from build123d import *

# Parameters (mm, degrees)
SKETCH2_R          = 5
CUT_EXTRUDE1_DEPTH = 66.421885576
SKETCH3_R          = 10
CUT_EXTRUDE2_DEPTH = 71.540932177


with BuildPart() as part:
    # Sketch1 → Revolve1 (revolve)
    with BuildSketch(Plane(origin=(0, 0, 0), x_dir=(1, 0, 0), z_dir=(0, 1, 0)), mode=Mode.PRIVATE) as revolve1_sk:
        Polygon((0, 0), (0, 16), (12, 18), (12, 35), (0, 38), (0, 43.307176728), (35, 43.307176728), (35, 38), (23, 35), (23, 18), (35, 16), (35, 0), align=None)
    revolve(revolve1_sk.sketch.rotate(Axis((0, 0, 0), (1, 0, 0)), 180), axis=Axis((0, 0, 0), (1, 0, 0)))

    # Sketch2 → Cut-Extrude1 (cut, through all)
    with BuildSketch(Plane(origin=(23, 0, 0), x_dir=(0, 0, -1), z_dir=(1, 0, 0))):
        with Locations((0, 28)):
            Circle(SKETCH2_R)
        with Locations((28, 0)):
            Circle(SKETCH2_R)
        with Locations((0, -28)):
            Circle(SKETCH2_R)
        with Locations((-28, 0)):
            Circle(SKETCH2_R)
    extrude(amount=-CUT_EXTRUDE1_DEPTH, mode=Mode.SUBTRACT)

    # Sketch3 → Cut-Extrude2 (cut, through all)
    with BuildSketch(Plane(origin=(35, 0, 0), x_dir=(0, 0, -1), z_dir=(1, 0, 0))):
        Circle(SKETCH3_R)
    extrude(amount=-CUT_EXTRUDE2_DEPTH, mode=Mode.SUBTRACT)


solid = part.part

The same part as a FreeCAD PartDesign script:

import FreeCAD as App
import Part
import Sketcher
from FreeCAD import Vector
Q = App.Units.Quantity

doc = App.newDocument("Part")
params = doc.addObject("Spreadsheet::Sheet", "Params")
for row, (alias, value) in enumerate([
    ("sketch1_width", "35 mm"),
    ("sketch1_height", "16 mm"),
    ("sketch1_height2", "17 mm"),
    ("revolution_angle", "360 deg"),
    ("sketch2_diameter", "10 mm"),
    ("sketch3_diameter", "20 mm"),
], start=1):
    params.set(f"A{row}", alias)
    params.set(f"B{row}", "=" + value)
    params.setAlias(f"B{row}", alias)

body = doc.addObject("PartDesign::Body", "Body")

sketch1 = body.newObject("Sketcher::SketchObject", "Sketch")
sketch1.AttachmentSupport = (doc.getObject("XZ_Plane"), [""])
sketch1.MapMode = "FlatFace"
sketch1.addGeometry(Part.LineSegment(Vector(0, -16, 0), Vector(0, 0, 0)), False)
sketch1.addGeometry(Part.LineSegment(Vector(0, 0, 0), Vector(35, 0, 0)), False)
sketch1.addGeometry(Part.LineSegment(Vector(35, 0, 0), Vector(35, -16, 0)), False)
sketch1.addGeometry(Part.LineSegment(Vector(35, -16, 0), Vector(23, -18, 0)), False)
sketch1.addGeometry(Part.LineSegment(Vector(23, -18, 0), Vector(23, -35, 0)), False)
sketch1.addGeometry(Part.LineSegment(Vector(23, -35, 0), Vector(35, -38, 0)), False)
sketch1.addGeometry(Part.LineSegment(Vector(35, -38, 0), Vector(35, -43, 0)), False)
sketch1.addGeometry(Part.LineSegment(Vector(35, -43, 0), Vector(0, -43, 0)), False)
sketch1.addGeometry(Part.LineSegment(Vector(0, -43, 0), Vector(0, -38, 0)), False)
sketch1.addGeometry(Part.LineSegment(Vector(0, -38, 0), Vector(12, -35, 0)), False)
sketch1.addGeometry(Part.LineSegment(Vector(12, -35, 0), Vector(12, -18, 0)), False)
sketch1.addGeometry(Part.LineSegment(Vector(12, -18, 0), Vector(0, -16, 0)), False)
sketch1.addConstraint(Sketcher.Constraint("Coincident", 0, 2, 1, 1))
sketch1.addConstraint(Sketcher.Constraint("Coincident", 1, 2, 2, 1))
sketch1.addConstraint(Sketcher.Constraint("Coincident", 2, 2, 3, 1))
sketch1.addConstraint(Sketcher.Constraint("Coincident", 3, 2, 4, 1))
sketch1.addConstraint(Sketcher.Constraint("Coincident", 4, 2, 5, 1))
sketch1.addConstraint(Sketcher.Constraint("Coincident", 5, 2, 6, 1))
sketch1.addConstraint(Sketcher.Constraint("Coincident", 6, 2, 7, 1))
sketch1.addConstraint(Sketcher.Constraint("Coincident", 7, 2, 8, 1))
sketch1.addConstraint(Sketcher.Constraint("Coincident", 8, 2, 9, 1))
sketch1.addConstraint(Sketcher.Constraint("Coincident", 9, 2, 10, 1))
sketch1.addConstraint(Sketcher.Constraint("Coincident", 10, 2, 11, 1))
sketch1.addConstraint(Sketcher.Constraint("Coincident", 11, 2, 0, 1))
sketch1.addConstraint(Sketcher.Constraint("Vertical", 0))
sketch1.addConstraint(Sketcher.Constraint("Horizontal", 1))
sketch1.addConstraint(Sketcher.Constraint("Vertical", 2))
sketch1.addConstraint(Sketcher.Constraint("Vertical", 4))
sketch1.addConstraint(Sketcher.Constraint("Vertical", 6))
sketch1.addConstraint(Sketcher.Constraint("Horizontal", 7))
sketch1.addConstraint(Sketcher.Constraint("Vertical", 8))
sketch1.addConstraint(Sketcher.Constraint("Vertical", 10))
sketch1.addConstraint(Sketcher.Constraint("Coincident", 0, 2, -1, 1))
sketch1.addConstraint(Sketcher.Constraint("PointOnObject", 7, 2, -2))
sketch1.addConstraint(Sketcher.Constraint("Horizontal", 5, 2, 8, 2))
sketch1.addConstraint(Sketcher.Constraint("Horizontal", 4, 2, 9, 2))
sketch1.addConstraint(Sketcher.Constraint("Horizontal", 3, 2, 10, 2))
sketch1.addConstraint(Sketcher.Constraint("Horizontal", 2, 2, 11, 2))
sketch1.addConstraint(Sketcher.Constraint("Vertical", 2, 2, 5, 2))
sketch1.addConstraint(Sketcher.Constraint("Equal", 5, 9))
sketch1.addConstraint(Sketcher.Constraint("DistanceX", 1, 1, 1, 2, Q("35 mm")))
sketch1.addConstraint(Sketcher.Constraint("DistanceY", 0, 1, 0, 2, Q("16 mm")))
sketch1.addConstraint(Sketcher.Constraint("DistanceY", 4, 2, 4, 1, Q("17 mm")))
sketch1.addConstraint(Sketcher.Constraint("DistanceX", -1, 1, 3, 2, Q("23 mm")))
sketch1.addConstraint(Sketcher.Constraint("DistanceY", 3, 2, -1, 1, Q("18 mm")))
sketch1.addConstraint(Sketcher.Constraint("DistanceY", 5, 2, -1, 1, Q("38 mm")))
sketch1.addConstraint(Sketcher.Constraint("DistanceY", 6, 2, 6, 1, Q("5.307177 mm")))
sketch1.setExpression("Constraints[28]", "Params.sketch1_width")
sketch1.setExpression("Constraints[29]", "Params.sketch1_height")
sketch1.setExpression("Constraints[30]", "Params.sketch1_height2")
revolution = body.newObject("PartDesign::Revolution", "Revolution")
revolution.Profile = sketch1
revolution.ReferenceAxis = (sketch1, ["H_Axis"])
revolution.setExpression("Angle", "Params.revolution_angle")

sketch2 = body.newObject("Sketcher::SketchObject", "Sketch001")
sketch2.AttachmentSupport = (doc.getObject("YZ_Plane"), [""])
sketch2.MapMode = "FlatFace"
sketch2.AttachmentOffset = App.Placement(Vector(0, 0, 23), App.Rotation())
sketch2.addGeometry(Part.Circle(Vector(28, 0, 0), Vector(0, 0, 1), 5), False)
sketch2.addGeometry(Part.Circle(Vector(0, -28, 0), Vector(0, 0, 1), 5), False)
sketch2.addGeometry(Part.Circle(Vector(-28, 0, 0), Vector(0, 0, 1), 5), False)
sketch2.addGeometry(Part.Circle(Vector(0, 28, 0), Vector(0, 0, 1), 5), False)
sketch2.addConstraint(Sketcher.Constraint("Equal", 0, 1))
sketch2.addConstraint(Sketcher.Constraint("Equal", 1, 2))
sketch2.addConstraint(Sketcher.Constraint("Equal", 2, 3))
sketch2.addConstraint(Sketcher.Constraint("Symmetric", 0, 3, 2, 3, -1, 1))
sketch2.addConstraint(Sketcher.Constraint("Symmetric", 1, 3, 3, 3, -1, 1))
sketch2.addConstraint(Sketcher.Constraint("PointOnObject", 0, 3, -1))
sketch2.addConstraint(Sketcher.Constraint("PointOnObject", 1, 3, -2))
sketch2.addConstraint(Sketcher.Constraint("Diameter", 0, Q("10 mm")))
sketch2.addConstraint(Sketcher.Constraint("DistanceX", -1, 1, 0, 3, Q("28 mm")))
sketch2.addConstraint(Sketcher.Constraint("DistanceY", 1, 3, -1, 1, Q("28 mm")))
sketch2.setExpression("Constraints[7]", "Params.sketch2_diameter")
pocket1 = body.newObject("PartDesign::Pocket", "Pocket")
pocket1.Profile = sketch2
pocket1.Type = "ThroughAll"

sketch3 = body.newObject("Sketcher::SketchObject", "Sketch002")
sketch3.AttachmentSupport = (doc.getObject("YZ_Plane"), [""])
sketch3.MapMode = "FlatFace"
sketch3.AttachmentOffset = App.Placement(Vector(0, 0, 35), App.Rotation())
sketch3.addGeometry(Part.Circle(Vector(0, 0, 0), Vector(0, 0, 1), 10), False)
sketch3.addConstraint(Sketcher.Constraint("Coincident", 0, 3, -1, 1))
sketch3.addConstraint(Sketcher.Constraint("Diameter", 0, Q("20 mm")))
sketch3.setExpression("Constraints[1]", "Params.sketch3_diameter")
pocket2 = body.newObject("PartDesign::Pocket", "Pocket001")
pocket2.Profile = sketch3
pocket2.Type = "ThroughAll"

doc.recompute()
